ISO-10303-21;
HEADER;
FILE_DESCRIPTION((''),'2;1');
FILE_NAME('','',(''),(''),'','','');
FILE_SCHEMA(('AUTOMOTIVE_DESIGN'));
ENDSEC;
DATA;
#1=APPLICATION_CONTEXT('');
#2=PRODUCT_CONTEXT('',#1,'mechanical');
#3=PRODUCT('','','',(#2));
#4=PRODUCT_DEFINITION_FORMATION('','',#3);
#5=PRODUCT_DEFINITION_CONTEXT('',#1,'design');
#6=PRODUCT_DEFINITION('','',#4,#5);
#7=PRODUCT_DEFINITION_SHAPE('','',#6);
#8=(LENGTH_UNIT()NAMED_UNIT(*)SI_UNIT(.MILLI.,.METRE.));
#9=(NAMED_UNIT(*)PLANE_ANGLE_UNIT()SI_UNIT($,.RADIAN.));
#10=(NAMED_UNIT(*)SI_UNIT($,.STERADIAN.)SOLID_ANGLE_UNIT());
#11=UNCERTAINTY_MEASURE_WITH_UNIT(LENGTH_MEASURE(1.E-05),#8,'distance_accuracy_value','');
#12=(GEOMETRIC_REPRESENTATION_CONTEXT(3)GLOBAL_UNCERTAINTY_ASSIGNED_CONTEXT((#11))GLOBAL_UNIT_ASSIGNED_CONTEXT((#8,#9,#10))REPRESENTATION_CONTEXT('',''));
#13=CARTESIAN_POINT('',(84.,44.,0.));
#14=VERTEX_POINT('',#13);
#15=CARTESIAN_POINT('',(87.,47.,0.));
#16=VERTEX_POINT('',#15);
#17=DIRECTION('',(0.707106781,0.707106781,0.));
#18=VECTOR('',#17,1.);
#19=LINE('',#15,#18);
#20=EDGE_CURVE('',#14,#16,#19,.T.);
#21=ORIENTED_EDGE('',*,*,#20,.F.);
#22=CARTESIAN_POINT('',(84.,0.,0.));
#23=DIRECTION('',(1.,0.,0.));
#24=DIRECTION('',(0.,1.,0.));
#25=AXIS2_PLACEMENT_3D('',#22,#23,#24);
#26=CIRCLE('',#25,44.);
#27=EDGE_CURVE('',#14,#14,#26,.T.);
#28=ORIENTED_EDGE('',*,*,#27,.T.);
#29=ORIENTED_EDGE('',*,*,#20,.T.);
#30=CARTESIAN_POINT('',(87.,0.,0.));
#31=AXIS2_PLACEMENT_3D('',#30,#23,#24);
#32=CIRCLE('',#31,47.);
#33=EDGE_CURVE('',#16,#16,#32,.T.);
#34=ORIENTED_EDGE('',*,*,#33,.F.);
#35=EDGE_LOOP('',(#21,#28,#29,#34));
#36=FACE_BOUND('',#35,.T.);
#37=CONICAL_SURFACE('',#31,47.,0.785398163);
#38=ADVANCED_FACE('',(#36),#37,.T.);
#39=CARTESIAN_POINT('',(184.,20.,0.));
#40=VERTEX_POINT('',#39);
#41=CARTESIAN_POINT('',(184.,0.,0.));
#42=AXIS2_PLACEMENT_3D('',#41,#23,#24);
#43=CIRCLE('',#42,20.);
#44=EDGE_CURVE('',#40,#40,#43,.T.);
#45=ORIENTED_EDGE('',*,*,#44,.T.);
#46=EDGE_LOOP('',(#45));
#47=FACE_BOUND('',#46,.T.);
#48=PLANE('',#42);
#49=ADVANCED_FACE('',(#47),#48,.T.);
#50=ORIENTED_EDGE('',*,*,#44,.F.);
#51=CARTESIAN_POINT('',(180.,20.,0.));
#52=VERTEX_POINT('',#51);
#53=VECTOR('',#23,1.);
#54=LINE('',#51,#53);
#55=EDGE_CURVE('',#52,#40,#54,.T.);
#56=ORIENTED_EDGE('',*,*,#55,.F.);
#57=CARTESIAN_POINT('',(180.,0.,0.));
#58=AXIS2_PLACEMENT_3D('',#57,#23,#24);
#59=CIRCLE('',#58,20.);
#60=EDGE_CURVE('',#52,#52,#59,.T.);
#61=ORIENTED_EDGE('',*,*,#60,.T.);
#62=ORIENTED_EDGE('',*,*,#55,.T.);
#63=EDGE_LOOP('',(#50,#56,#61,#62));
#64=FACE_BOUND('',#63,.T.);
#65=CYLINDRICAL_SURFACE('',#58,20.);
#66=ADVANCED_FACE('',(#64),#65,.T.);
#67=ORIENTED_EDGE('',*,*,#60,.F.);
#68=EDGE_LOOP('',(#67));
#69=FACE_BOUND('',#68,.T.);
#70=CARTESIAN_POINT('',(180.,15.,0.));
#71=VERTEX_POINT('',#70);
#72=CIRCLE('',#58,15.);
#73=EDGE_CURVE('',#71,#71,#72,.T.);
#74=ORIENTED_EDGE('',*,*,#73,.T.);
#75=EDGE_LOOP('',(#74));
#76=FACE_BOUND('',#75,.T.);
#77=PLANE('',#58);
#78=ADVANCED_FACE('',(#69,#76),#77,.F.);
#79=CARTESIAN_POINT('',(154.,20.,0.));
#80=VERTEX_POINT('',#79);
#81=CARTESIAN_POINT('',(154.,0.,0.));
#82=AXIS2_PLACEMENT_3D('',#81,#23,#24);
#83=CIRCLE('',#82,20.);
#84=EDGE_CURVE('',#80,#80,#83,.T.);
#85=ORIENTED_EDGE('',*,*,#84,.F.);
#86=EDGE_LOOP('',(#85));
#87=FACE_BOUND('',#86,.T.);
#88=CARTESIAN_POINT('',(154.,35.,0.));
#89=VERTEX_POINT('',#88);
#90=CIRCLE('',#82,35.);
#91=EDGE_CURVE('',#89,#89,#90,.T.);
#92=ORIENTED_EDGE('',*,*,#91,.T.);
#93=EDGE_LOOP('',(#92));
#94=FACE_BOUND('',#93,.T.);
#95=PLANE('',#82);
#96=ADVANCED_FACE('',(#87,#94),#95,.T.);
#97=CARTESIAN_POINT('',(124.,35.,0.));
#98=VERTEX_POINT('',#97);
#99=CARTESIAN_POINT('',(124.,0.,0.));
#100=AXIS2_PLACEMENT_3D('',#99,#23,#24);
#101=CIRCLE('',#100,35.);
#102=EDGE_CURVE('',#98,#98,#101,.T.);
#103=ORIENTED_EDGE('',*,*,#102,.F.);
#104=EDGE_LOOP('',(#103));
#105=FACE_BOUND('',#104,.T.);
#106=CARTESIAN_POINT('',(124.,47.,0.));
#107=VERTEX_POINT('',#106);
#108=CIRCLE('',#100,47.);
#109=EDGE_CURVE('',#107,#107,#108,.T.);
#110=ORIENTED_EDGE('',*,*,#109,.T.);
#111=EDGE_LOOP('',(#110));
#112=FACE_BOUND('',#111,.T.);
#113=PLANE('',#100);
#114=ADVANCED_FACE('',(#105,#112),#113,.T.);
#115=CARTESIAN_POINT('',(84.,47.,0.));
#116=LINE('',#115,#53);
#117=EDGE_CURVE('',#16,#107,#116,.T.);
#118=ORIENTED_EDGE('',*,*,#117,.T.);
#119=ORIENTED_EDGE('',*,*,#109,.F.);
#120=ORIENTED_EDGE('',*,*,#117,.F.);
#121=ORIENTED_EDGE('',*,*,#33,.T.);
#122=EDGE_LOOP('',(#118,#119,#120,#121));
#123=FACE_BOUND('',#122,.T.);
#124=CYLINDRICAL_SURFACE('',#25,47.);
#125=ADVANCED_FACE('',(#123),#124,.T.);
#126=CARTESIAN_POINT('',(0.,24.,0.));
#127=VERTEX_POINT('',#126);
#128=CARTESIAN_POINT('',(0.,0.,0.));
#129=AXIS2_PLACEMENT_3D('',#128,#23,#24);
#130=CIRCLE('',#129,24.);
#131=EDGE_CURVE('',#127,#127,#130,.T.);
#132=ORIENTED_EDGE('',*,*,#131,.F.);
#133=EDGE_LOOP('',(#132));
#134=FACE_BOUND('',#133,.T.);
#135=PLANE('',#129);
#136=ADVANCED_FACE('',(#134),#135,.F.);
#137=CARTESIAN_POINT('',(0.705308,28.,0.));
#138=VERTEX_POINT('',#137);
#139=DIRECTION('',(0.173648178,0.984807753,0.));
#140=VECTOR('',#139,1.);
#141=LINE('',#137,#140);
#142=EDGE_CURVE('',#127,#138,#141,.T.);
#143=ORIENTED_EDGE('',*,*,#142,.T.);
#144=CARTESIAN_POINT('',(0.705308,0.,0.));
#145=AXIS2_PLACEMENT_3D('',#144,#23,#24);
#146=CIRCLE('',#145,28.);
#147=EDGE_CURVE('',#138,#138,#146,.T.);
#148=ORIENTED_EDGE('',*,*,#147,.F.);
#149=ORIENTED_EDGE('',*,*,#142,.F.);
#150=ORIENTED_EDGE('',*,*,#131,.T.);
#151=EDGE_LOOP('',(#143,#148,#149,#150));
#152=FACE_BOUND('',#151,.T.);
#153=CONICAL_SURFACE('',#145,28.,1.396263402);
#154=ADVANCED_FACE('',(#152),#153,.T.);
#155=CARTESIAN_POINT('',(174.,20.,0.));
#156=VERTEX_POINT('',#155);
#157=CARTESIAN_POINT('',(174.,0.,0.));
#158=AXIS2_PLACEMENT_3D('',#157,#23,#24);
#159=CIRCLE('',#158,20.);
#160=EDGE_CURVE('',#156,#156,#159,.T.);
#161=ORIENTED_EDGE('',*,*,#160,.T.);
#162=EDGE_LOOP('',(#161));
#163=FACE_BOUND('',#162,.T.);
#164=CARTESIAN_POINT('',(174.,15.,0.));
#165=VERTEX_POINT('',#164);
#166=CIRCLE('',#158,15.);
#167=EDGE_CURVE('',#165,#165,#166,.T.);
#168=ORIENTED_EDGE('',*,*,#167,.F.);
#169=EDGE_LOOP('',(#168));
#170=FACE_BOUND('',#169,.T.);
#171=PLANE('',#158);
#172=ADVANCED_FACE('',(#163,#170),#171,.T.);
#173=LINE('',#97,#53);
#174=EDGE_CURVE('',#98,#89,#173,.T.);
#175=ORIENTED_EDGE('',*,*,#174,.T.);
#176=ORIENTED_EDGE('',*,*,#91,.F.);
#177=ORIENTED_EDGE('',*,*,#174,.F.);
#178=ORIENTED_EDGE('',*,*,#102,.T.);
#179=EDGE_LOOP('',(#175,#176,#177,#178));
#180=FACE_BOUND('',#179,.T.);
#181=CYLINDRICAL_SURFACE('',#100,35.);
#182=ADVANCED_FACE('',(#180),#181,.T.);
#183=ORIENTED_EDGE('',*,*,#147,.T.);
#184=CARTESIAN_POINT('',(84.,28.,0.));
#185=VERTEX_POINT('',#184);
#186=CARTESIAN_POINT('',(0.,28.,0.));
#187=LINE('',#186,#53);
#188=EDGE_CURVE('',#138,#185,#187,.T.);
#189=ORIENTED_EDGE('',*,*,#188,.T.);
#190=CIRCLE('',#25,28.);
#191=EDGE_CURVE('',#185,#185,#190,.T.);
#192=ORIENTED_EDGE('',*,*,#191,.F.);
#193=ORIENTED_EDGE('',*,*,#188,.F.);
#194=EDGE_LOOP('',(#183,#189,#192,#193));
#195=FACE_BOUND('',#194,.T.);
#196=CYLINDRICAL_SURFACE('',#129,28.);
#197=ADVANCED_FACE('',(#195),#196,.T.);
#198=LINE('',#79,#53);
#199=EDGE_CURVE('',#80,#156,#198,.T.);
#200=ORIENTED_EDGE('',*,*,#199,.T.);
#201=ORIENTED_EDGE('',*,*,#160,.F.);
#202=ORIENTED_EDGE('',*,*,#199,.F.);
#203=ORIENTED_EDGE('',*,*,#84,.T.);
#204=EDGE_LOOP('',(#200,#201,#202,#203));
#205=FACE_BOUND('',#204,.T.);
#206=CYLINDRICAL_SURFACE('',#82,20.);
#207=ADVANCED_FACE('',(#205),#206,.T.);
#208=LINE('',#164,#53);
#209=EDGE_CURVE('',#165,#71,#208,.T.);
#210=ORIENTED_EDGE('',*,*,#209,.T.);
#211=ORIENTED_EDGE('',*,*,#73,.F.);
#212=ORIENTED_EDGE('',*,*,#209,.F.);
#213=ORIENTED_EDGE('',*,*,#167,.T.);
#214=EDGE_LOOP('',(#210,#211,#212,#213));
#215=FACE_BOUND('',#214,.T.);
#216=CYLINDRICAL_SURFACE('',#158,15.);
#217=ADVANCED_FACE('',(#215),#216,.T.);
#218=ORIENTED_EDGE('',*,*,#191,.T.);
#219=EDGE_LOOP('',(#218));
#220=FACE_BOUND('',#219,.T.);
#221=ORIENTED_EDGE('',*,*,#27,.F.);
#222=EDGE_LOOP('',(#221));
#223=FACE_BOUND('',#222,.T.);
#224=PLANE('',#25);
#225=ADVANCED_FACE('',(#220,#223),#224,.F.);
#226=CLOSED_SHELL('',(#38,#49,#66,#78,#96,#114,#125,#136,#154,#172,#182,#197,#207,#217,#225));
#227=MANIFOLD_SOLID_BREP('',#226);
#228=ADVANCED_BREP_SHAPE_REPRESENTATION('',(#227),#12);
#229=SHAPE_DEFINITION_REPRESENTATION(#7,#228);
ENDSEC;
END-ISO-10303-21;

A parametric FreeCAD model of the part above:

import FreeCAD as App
import Part
import Sketcher
from FreeCAD import Vector


def edges_at(feature, points):
    """Names of the edges that pass closest to the given points."""
    edges = feature.Shape.Edges
    near = lambda p: min(range(len(edges)), key=lambda i: edges[i].distToShape(Part.Vertex(*p))[0])
    return sorted({f"Edge{near(p) + 1}" for p in points})


def add_polygon(sketch, points):
    """Adds a closed chain of lines whose ends are joined by coincident constraints."""
    first, n = sketch.GeometryCount, len(points)
    for a, b in zip(points, points[1:] + points[:1]):
        sketch.addGeometry(Part.LineSegment(App.Vector(*a, 0), App.Vector(*b, 0)), False)
    for i in range(n):
        sketch.addConstraint(Sketcher.Constraint("Coincident", first + i, 2, first + (i + 1) % n, 1))

doc = App.newDocument("Part")
body = doc.addObject("PartDesign::Body", "Body")

# Sketch on XY plane
sketch1 = doc.addObject("Sketcher::SketchObject", "Sketch")
body.addObject(sketch1)
sketch1.AttachmentSupport = (doc.XY_Plane, [""])
sketch1.MapMode = "FlatFace"
add_polygon(sketch1, [(0, 28), (0, 0), (184, 0), (184, 20), (180, 20), (180, 15), (174, 15), (174, 20), (154, 20), (154, 35), (124, 35), (124, 47), (84, 47), (84, 28)])  # lines 0-13
sketch1.addConstraint([
    Sketcher.Constraint("Vertical", 0),
    Sketcher.Constraint("Horizontal", 1),
    Sketcher.Constraint("Vertical", 2),
    Sketcher.Constraint("Horizontal", 3),
    Sketcher.Constraint("Vertical", 4),
    Sketcher.Constraint("Horizontal", 5),
    Sketcher.Constraint("Vertical", 6),
    Sketcher.Constraint("Horizontal", 7),
    Sketcher.Constraint("Vertical", 8),
    Sketcher.Constraint("Horizontal", 9),
    Sketcher.Constraint("Vertical", 10),
    Sketcher.Constraint("Horizontal", 11),
    Sketcher.Constraint("Vertical", 12),
    Sketcher.Constraint("Horizontal", 13),
    Sketcher.Constraint("Coincident", 0, 2, -1, 1),
    Sketcher.Constraint("Horizontal", 3, 2, 6, 2),
    Sketcher.Constraint("Equal", 7, 2),
    Sketcher.Constraint("DistanceX", 1, 1, 1, 2, 184.0),
    Sketcher.Constraint("DistanceX", 3, 2, 3, 1, 4.0),
    Sketcher.Constraint("DistanceX", 7, 2, 7, 1, 20.0),
    Sketcher.Constraint("DistanceX", 9, 2, 9, 1, 30.0),
    Sketcher.Constraint("DistanceX", 11, 2, 11, 1, 40.0),
    Sketcher.Constraint("DistanceX", 13, 2, 13, 1, 84.0),
    Sketcher.Constraint("DistanceY", 5, 2, 8, 2, 20.0),
    Sketcher.Constraint("DistanceY", 0, 2, 0, 1, 28.0),
    Sketcher.Constraint("DistanceY", 4, 2, 4, 1, 5.0),
    Sketcher.Constraint("DistanceY", 10, 1, 10, 2, 12.0),
])
revolution = doc.addObject("PartDesign::Revolution", "Revolution")
body.addObject(revolution)
revolution.Profile = sketch1
revolution.ReferenceAxis = (sketch1, ["H_Axis"])
revolution.Angle = 360
doc.recompute()

chamfer = doc.addObject("PartDesign::Chamfer", "Chamfer")
body.addObject(chamfer)
chamfer.Base = (revolution, edges_at(revolution, [(0, -28, 0)]))
chamfer.ChamferType = "Distance and Angle"
chamfer.Size = 4
chamfer.Angle = 10
doc.recompute()

chamfer2 = doc.addObject("PartDesign::Chamfer", "Chamfer001")
body.addObject(chamfer2)
chamfer2.Base = (chamfer, edges_at(chamfer, [(84, -47, 0)]))
chamfer2.Size = 3

doc.recompute()
